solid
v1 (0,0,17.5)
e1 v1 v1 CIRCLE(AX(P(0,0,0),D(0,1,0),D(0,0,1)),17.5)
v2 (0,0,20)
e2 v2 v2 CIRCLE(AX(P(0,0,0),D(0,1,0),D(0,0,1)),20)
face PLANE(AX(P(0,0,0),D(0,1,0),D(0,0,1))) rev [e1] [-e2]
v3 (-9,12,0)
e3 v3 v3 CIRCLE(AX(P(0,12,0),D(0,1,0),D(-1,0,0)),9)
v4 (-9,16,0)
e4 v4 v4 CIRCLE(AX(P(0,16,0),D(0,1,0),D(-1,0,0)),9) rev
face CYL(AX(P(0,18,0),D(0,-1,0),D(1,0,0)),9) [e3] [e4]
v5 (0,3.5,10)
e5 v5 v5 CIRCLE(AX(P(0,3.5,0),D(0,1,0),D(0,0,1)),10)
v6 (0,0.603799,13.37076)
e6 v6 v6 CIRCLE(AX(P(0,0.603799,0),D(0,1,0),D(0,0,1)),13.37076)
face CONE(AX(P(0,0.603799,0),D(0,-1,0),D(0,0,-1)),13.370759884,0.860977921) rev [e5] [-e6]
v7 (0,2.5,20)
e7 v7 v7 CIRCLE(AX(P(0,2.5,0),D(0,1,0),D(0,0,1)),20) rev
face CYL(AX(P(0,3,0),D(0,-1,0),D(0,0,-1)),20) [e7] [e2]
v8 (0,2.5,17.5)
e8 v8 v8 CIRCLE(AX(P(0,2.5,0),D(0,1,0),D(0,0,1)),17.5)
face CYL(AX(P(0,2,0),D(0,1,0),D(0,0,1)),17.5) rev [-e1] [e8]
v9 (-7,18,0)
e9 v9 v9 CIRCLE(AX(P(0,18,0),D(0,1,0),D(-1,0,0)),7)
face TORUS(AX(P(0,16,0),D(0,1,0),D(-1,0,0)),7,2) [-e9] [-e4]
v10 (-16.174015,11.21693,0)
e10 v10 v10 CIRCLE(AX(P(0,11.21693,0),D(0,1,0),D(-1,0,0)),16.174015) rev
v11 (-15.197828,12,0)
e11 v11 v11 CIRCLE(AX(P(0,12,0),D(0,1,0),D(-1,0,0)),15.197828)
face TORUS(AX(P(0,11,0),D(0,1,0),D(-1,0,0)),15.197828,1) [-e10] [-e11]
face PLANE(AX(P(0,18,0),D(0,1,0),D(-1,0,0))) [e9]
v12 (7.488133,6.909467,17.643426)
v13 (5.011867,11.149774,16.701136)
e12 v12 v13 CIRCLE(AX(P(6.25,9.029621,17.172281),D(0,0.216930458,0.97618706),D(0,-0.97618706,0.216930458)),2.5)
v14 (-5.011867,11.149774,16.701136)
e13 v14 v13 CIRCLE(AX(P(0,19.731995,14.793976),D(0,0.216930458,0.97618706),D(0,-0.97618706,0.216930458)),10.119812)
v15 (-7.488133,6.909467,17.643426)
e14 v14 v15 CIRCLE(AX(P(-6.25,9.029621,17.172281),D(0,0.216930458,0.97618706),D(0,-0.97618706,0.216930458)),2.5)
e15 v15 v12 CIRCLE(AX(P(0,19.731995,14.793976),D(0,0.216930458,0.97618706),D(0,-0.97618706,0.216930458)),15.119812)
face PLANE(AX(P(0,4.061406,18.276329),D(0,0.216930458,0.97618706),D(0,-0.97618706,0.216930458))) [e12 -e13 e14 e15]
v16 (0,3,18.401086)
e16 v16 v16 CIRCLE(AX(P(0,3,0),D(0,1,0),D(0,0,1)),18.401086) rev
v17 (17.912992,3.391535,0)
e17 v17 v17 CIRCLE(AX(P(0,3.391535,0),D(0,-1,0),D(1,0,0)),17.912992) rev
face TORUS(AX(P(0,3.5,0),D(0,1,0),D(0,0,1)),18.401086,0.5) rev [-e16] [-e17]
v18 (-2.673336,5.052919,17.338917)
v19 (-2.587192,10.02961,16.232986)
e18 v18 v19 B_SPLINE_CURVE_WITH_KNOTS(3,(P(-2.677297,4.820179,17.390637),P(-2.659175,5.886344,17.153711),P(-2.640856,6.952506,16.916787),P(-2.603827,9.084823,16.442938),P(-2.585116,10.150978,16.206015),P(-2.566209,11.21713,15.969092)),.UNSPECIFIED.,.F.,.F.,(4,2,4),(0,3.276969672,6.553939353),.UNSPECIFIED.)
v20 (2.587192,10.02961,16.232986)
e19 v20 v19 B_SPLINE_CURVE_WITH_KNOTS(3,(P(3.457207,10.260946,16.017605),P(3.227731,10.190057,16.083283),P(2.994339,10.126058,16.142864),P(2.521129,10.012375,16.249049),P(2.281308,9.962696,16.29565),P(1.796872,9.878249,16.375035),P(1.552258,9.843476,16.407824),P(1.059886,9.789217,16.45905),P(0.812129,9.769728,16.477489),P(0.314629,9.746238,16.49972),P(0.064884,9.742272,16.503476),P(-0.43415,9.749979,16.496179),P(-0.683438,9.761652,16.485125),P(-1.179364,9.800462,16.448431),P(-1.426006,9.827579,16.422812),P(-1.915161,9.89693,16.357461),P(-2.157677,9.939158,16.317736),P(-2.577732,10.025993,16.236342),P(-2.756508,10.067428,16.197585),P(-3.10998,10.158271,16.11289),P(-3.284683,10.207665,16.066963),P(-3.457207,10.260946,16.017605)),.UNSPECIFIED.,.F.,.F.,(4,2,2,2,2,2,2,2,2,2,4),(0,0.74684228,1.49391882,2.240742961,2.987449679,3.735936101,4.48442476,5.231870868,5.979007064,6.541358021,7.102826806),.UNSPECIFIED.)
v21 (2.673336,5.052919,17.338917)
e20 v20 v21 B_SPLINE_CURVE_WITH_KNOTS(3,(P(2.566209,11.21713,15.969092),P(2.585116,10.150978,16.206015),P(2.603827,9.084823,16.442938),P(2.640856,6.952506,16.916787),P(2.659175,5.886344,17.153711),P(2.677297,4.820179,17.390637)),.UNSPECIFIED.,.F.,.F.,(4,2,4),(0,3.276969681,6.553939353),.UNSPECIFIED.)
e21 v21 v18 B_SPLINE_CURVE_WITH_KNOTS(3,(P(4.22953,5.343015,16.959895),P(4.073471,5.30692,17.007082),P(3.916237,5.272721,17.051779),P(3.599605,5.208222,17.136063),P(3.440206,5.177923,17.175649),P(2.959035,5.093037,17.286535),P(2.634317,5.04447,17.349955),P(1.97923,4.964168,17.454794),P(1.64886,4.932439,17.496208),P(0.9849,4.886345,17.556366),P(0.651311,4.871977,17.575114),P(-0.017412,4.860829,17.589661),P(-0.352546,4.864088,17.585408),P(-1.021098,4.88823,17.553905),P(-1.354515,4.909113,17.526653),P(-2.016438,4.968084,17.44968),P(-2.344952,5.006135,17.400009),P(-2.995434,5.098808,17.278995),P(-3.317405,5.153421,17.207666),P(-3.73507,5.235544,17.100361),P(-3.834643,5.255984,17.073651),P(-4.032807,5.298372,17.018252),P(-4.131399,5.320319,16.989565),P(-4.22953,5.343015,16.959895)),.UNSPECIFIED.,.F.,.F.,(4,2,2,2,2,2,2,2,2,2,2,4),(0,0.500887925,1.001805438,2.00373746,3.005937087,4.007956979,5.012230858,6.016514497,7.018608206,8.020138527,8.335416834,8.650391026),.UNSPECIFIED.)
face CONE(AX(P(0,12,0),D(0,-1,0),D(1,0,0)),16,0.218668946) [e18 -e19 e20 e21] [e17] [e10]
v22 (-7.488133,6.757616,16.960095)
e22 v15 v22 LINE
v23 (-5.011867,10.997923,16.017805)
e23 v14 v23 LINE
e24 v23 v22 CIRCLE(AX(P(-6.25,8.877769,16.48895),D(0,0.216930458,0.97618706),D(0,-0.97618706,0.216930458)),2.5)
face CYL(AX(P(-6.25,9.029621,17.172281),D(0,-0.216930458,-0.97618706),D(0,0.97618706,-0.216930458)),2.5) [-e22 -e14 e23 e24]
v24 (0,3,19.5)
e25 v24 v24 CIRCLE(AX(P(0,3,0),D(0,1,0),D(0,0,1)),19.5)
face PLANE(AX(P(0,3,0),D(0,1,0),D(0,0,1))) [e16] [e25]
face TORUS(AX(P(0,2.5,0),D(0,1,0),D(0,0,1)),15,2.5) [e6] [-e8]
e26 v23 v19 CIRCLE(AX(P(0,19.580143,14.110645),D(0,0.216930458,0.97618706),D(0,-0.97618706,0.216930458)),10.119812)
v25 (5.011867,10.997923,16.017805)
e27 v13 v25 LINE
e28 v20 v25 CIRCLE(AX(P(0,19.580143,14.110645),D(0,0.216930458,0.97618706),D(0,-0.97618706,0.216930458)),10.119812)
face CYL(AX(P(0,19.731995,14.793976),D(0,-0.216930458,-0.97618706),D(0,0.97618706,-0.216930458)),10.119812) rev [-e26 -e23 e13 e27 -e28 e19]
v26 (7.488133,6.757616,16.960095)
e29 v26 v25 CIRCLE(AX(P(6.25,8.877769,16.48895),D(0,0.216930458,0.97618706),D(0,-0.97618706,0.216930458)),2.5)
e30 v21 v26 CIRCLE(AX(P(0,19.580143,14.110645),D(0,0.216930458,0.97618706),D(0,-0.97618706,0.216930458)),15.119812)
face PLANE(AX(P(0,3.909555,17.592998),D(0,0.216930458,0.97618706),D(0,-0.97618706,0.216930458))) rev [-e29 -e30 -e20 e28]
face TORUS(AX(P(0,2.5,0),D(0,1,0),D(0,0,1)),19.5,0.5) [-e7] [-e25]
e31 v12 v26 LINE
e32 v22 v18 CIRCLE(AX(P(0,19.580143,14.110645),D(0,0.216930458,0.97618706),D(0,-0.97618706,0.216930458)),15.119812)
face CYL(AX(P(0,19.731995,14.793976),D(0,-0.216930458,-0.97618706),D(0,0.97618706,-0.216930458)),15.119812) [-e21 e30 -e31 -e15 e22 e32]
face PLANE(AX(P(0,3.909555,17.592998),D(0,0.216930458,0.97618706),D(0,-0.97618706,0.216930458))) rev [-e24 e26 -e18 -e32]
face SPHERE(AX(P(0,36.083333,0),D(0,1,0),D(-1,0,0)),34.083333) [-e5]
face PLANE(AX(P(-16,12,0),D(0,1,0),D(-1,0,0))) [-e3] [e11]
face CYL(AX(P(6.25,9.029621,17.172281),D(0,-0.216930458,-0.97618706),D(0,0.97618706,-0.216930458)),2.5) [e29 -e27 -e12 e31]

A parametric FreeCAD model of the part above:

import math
import FreeCAD as App
import Part
import Sketcher

V = App.Vector
Q = App.Units.Quantity


def edges_at(feature, points):
    """Names of the edges that pass closest to the given points."""
    edges = feature.Shape.Edges
    near = lambda p: min(range(len(edges)), key=lambda i: edges[i].distToShape(Part.Vertex(*p))[0])
    return sorted({f"Edge{near(p) + 1}" for p in points})


def add_polygon(sketch, points):
    """Adds a closed chain of lines whose ends are joined by coincident constraints."""
    first, n = sketch.GeometryCount, len(points)
    for a, b in zip(points, points[1:] + points[:1]):
        sketch.addGeometry(Part.LineSegment(App.Vector(*a, 0), App.Vector(*b, 0)), False)
    for i in range(n):
        sketch.addConstraint(Sketcher.Constraint("Coincident", first + i, 2, first + (i + 1) % n, 1))

doc = App.newDocument("Part")
body = doc.addObject("PartDesign::Body", "Body")

# Sketch on XZ plane
sketch1 = body.newObject("Sketcher::SketchObject", "Sketch")
sketch1.AttachmentSupport = (doc.getObject("XZ_Plane"), [""])
sketch1.MapMode = "FlatFace"
sketch1.addGeometry(Part.Circle(V(0, 0, 0), V(0, 0, 1), 20), False)
sketch1.addConstraint([
    Sketcher.Constraint("Coincident", 0, 3, -1, 1),
    Sketcher.Constraint("Diameter", 0, Q("40 mm")),
])
pad1 = body.newObject("PartDesign::Pad", "Pad")
pad1.Profile = sketch1
pad1.Length = 3
pad1.Reversed = True

# Sketch on XY plane
sketch2 = body.newObject("Sketcher::SketchObject", "Sketch001")
sketch2.AttachmentSupport = (doc.getObject("XY_Plane"), [""])
sketch2.MapMode = "FlatFace"
add_polygon(sketch2, [(-18, 3), (0, 3), (0, 12), (-16, 12)])  # lines 0-3
sketch2.addConstraint([
    Sketcher.Constraint("Horizontal", 0),
    Sketcher.Constraint("Vertical", 1),
    Sketcher.Constraint("Horizontal", 2),
    Sketcher.Constraint("PointOnObject", 0, 2, -2),
    Sketcher.Constraint("DistanceX", 0, 1, 0, 2, Q("18 mm")),
    Sketcher.Constraint("DistanceX", 2, 2, 2, 1, Q("16 mm")),
    Sketcher.Constraint("DistanceY", 1, 1, 1, 2, Q("9 mm")),
    Sketcher.Constraint("DistanceY", -1, 1, 0, 2, Q("3 mm")),
])
revolution = body.newObject("PartDesign::Revolution", "Revolution")
revolution.Profile = sketch2
revolution.ReferenceAxis = (sketch2, ["V_Axis"])
revolution.Angle = 360

# Sketch on XZ plane
sketch3 = body.newObject("Sketcher::SketchObject", "Sketch002")
sketch3.AttachmentSupport = (doc.getObject("XZ_Plane"), [""])
sketch3.MapMode = "FlatFace"
sketch3.AttachmentOffset = App.Placement(V(0, 0, -12), App.Rotation())
sketch3.addGeometry(Part.Circle(V(0, 0, 0), V(0, 0, 1), 9), False)
sketch3.addConstraint([
    Sketcher.Constraint("Coincident", 0, 3, -1, 1),
    Sketcher.Constraint("Diameter", 0, Q("18 mm")),
])
pad2 = body.newObject("PartDesign::Pad", "Pad001")
pad2.Profile = sketch3
pad2.Length = 6
pad2.Reversed = True
doc.recompute()

fillet = body.newObject("PartDesign::Fillet", "Fillet")
fillet.Base = (pad2, edges_at(pad2, [(-9, 18, 0)]))
fillet.Radius = 2
doc.recompute()

fillet2 = body.newObject("PartDesign::Fillet", "Fillet001")
fillet2.Base = (fillet, edges_at(fillet, [(16, 12, 0)]))
fillet2.Radius = 1

# Sketch on XY plane
sketch4 = body.newObject("Sketcher::SketchObject", "Sketch003")
sketch4.AttachmentSupport = (doc.getObject("XY_Plane"), [""])
sketch4.MapMode = "FlatFace"
sketch4.addGeometry([
    Part.LineSegment(V(-17.5, 0, 0), V(-15, 0, 0)),  # 0
    Part.ArcOfCircle(Part.Circle(V(-15, 2.5, 0), V(0, 0, 1), 2.5), math.radians(180), math.radians(270)),  # 1
    Part.LineSegment(V(-17.5, 2.5, 0), V(-17.5, 0, 0)),  # 2
    Part.LineSegment(V(-10, 3.5, 0), V(-13.4, 0.6, 0)),  # 3
    Part.ArcOfCircle(Part.Circle(V(-15, 2.5, 0), V(0, 0, 1), 2.5), math.radians(-90), math.radians(-49)),  # 4
    Part.LineSegment(V(-15, 0, 0), V(0, 0, 0)),  # 5
    Part.LineSegment(V(0, 0, 0), V(0, 2, 0)),  # 6
    Part.ArcOfCircle(Part.Circle(V(0, 36.1, 0), V(0, 0, 1), 34.1), math.radians(-107.06), math.radians(-90)),  # 7
], False)
sketch4.addConstraint([
    Sketcher.Constraint("Tangent", 0, 2, 1, 2),
    Sketcher.Constraint("Tangent", 1, 1, 2, 1),
    Sketcher.Constraint("Coincident", 2, 2, 0, 1),
    Sketcher.Constraint("Tangent", 3, 2, 4, 2),
    Sketcher.Constraint("Tangent", 4, 1, 5, 1),
    Sketcher.Constraint("Coincident", 5, 2, 6, 1),
    Sketcher.Constraint("Coincident", 6, 2, 7, 2),
    Sketcher.Constraint("Coincident", 7, 1, 3, 1),
    Sketcher.Constraint("Horizontal", 0),
    Sketcher.Constraint("Vertical", 2),
    Sketcher.Constraint("Horizontal", 5),
    Sketcher.Constraint("Vertical", 6),
    Sketcher.Constraint("Coincident", 5, 2, -1, 1),
    Sketcher.Constraint("Coincident", 4, 3, 1, 3),
    Sketcher.Constraint("Equal", 1, 4),
    Sketcher.Constraint("PointOnObject", 7, 3, -2),
    Sketcher.Constraint("Radius", 1, Q("2.5 mm")),
    Sketcher.Constraint("DistanceX", 5, 1, 5, 2, Q("15 mm")),
    Sketcher.Constraint("DistanceY", 6, 1, 6, 2, Q("2 mm")),
    Sketcher.Constraint("DistanceX", 7, 1, -1, 1, Q("10 mm")),
    Sketcher.Constraint("DistanceY", 4, 3, 7, 1, Q("1 mm")),
])
groove = body.newObject("PartDesign::Groove", "Groove")
groove.Profile = sketch4
groove.ReferenceAxis = (sketch4, ["V_Axis"])
groove.Angle = 360
doc.recompute()

fillet3 = body.newObject("PartDesign::Fillet", "Fillet002")
fillet3.Base = (groove, edges_at(groove, [(-20, 3, 0), (18, 3, 0)]))
fillet3.Radius = 0.5

# Sketch on an angled plane
sketch5 = body.newObject("Sketcher::SketchObject", "Sketch004")
sketch5.Placement = App.Placement(V(0, 3.909555, 17.592998), App.Rotation(V(1, 0, 0), V(0, 0.97618706, -0.216930458), V(0, 0.216930458, 0.97618706), "ZXY"))
sketch5.addGeometry([
    Part.ArcOfCircle(Part.Circle(V(0, 16.1, 0), V(0, 0, 1), 15.1), math.radians(-120), math.radians(-60)),
    Part.ArcOfCircle(Part.Circle(V(6.2, 5.1, 0), V(0, 0, 1), 2.5), math.radians(-60), math.radians(120)),
    Part.ArcOfCircle(Part.Circle(V(0, 16.1, 0), V(0, 0, 1), 10.1), math.radians(-120), math.radians(-60)),
    Part.ArcOfCircle(Part.Circle(V(-6.2, 5.1, 0), V(0, 0, 1), 2.5), math.radians(60), math.radians(240)),
], False)
sketch5.addConstraint([
    Sketcher.Constraint("Tangent", 0, 2, 1, 1),
    Sketcher.Constraint("Tangent", 1, 2, 2, 2),
    Sketcher.Constraint("Tangent", 2, 1, 3, 1),
    Sketcher.Constraint("Tangent", 3, 2, 0, 1),
    Sketcher.Constraint("Coincident", 2, 3, 0, 3),
    Sketcher.Constraint("Symmetric", 1, 3, 3, 3, -2),
    Sketcher.Constraint("Radius", 1, Q("2.5 mm")),
    Sketcher.Constraint("DistanceX", 3, 3, 1, 3, Q("12.5 mm")),
    Sketcher.Constraint("Radius", 0, Q("15.119812 mm")),
    Sketcher.Constraint("DistanceY", -1, 1, 1, 3, Q("5.089408 mm")),
])
pad3 = body.newObject("PartDesign::Pad", "Pad002")
pad3.Profile = sketch5
pad3.Length = 0.7

doc.recompute()
